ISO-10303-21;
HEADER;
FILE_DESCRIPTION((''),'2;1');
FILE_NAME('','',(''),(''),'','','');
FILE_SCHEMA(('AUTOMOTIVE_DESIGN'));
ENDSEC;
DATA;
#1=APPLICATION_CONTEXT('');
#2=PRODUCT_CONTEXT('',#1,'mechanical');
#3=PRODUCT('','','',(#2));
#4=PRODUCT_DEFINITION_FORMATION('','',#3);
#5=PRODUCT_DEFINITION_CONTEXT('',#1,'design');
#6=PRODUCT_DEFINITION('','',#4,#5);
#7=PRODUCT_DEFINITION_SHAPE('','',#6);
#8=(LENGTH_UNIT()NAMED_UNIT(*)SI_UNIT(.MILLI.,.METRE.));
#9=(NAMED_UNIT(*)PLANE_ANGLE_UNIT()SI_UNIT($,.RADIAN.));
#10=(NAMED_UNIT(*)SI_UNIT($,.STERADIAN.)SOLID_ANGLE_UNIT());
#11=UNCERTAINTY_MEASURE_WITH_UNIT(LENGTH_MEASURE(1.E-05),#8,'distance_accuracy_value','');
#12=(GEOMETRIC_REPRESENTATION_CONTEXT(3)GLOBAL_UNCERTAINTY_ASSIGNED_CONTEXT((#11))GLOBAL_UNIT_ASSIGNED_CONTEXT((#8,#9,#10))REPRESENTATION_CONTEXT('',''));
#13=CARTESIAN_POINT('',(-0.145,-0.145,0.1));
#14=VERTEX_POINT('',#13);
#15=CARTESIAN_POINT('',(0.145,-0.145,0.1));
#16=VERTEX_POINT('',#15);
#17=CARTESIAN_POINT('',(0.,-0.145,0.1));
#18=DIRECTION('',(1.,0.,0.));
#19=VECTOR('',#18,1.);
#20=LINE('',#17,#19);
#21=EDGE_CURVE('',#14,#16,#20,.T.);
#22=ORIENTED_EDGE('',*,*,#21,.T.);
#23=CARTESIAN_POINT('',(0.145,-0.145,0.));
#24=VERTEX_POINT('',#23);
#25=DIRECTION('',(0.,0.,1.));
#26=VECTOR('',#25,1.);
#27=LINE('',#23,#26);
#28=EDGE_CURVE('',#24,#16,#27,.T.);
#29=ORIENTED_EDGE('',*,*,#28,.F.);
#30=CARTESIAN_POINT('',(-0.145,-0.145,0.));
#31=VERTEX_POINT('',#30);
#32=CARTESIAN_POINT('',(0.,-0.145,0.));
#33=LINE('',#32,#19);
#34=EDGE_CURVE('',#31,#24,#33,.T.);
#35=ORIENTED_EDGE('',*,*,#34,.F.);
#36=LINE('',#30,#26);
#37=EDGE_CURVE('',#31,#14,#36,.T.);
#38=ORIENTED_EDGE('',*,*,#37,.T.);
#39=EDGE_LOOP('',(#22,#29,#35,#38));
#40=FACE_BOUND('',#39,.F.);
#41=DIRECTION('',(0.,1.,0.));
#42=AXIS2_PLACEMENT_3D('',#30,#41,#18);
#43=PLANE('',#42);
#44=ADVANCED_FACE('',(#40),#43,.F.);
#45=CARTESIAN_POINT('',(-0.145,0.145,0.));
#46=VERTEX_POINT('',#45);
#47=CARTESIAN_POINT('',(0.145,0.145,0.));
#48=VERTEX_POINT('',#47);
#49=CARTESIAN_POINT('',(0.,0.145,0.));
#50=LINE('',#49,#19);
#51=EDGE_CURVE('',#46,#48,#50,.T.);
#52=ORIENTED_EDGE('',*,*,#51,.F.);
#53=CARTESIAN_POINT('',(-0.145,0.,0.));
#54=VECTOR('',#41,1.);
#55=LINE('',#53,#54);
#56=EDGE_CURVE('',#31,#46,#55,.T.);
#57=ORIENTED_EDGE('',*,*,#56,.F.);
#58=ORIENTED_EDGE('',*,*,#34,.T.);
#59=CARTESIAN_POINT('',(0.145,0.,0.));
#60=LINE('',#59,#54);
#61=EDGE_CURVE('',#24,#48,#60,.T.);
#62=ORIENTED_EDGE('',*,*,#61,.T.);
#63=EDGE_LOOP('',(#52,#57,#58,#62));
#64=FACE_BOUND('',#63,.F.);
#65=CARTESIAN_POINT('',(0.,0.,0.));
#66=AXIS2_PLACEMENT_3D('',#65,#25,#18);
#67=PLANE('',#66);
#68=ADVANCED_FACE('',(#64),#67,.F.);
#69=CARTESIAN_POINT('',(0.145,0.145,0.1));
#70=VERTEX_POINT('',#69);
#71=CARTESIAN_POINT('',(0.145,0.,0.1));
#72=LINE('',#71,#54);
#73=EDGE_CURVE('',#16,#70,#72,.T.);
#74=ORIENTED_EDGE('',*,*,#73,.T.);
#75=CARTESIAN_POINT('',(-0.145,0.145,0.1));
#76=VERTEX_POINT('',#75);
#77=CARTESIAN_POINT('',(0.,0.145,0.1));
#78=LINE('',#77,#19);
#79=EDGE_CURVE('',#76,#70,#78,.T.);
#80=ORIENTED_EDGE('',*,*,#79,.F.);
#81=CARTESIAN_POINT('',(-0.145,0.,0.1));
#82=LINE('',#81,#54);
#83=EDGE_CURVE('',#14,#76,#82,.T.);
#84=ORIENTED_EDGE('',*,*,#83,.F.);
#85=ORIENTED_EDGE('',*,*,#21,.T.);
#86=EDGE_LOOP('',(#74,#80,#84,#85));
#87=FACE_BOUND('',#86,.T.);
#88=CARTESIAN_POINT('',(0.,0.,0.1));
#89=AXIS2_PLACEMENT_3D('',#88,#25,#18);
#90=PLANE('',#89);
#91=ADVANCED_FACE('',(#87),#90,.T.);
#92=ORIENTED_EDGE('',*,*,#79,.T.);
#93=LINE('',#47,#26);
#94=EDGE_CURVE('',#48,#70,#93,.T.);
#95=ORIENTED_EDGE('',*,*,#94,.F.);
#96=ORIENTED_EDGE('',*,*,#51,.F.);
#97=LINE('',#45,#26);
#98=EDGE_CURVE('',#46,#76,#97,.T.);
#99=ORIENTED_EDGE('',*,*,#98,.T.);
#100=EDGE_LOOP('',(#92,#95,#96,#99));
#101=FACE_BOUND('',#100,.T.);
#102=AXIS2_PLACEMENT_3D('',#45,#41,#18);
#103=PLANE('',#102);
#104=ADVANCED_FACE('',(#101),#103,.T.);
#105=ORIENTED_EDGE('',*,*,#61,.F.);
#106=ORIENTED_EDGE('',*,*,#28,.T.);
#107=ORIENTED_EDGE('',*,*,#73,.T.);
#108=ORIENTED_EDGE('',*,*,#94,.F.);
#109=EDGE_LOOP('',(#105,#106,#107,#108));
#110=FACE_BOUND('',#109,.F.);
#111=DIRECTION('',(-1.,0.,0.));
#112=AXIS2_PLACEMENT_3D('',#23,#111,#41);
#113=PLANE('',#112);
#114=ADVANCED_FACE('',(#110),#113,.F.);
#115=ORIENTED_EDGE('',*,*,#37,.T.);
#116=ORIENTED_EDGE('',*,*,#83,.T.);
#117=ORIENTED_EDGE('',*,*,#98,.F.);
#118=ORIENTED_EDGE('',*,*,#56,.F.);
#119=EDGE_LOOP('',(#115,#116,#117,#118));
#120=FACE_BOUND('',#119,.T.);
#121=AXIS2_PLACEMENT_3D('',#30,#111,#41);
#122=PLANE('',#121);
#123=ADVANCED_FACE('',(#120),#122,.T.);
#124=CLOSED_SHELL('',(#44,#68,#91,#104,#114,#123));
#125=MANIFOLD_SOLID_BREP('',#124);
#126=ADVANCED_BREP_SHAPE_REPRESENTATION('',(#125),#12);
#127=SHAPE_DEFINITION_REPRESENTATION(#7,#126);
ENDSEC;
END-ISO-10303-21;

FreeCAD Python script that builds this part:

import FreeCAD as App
import Part
import Sketcher

doc = App.newDocument("Part")
body = doc.addObject("PartDesign::Body", "Body")

# Sketch on XY plane
sketch1 = body.newObject("Sketcher::SketchObject", "Sketch")
sketch1.AttachmentSupport = (doc.getObject("XY_Plane"), [""])
sketch1.MapMode = "FlatFace"
sketch1.addGeometry([
    Part.LineSegment(App.Vector(-0.145, 0.145, 0), App.Vector(-0.145, -0.145, 0)),
    Part.LineSegment(App.Vector(-0.145, -0.145, 0), App.Vector(0.145, -0.145, 0)),
    Part.LineSegment(App.Vector(0.145, -0.145, 0), App.Vector(0.145, 0.145, 0)),
    Part.LineSegment(App.Vector(0.145, 0.145, 0), App.Vector(-0.145, 0.145, 0)),
], False)
sketch1.addConstraint([
    Sketcher.Constraint("Coincident", 0, 2, 1, 1),
    Sketcher.Constraint("Coincident", 1, 2, 2, 1),
    Sketcher.Constraint("Coincident", 2, 2, 3, 1),
    Sketcher.Constraint("Coincident", 3, 2, 0, 1),
    Sketcher.Constraint("Vertical", 0),
    Sketcher.Constraint("Horizontal", 1),
    Sketcher.Constraint("Vertical", 2),
    Sketcher.Constraint("Horizontal", 3),
    Sketcher.Constraint("Symmetric", 0, 2, 2, 2, -1, 1),
    Sketcher.Constraint("Equal", 3, 0),
    Sketcher.Constraint("DistanceX", 1, 1, 1, 2, 0.29),
])
pad1 = body.newObject("PartDesign::Pad", "Pad")
pad1.Profile = sketch1
pad1.Length = 0.1

doc.recompute()
